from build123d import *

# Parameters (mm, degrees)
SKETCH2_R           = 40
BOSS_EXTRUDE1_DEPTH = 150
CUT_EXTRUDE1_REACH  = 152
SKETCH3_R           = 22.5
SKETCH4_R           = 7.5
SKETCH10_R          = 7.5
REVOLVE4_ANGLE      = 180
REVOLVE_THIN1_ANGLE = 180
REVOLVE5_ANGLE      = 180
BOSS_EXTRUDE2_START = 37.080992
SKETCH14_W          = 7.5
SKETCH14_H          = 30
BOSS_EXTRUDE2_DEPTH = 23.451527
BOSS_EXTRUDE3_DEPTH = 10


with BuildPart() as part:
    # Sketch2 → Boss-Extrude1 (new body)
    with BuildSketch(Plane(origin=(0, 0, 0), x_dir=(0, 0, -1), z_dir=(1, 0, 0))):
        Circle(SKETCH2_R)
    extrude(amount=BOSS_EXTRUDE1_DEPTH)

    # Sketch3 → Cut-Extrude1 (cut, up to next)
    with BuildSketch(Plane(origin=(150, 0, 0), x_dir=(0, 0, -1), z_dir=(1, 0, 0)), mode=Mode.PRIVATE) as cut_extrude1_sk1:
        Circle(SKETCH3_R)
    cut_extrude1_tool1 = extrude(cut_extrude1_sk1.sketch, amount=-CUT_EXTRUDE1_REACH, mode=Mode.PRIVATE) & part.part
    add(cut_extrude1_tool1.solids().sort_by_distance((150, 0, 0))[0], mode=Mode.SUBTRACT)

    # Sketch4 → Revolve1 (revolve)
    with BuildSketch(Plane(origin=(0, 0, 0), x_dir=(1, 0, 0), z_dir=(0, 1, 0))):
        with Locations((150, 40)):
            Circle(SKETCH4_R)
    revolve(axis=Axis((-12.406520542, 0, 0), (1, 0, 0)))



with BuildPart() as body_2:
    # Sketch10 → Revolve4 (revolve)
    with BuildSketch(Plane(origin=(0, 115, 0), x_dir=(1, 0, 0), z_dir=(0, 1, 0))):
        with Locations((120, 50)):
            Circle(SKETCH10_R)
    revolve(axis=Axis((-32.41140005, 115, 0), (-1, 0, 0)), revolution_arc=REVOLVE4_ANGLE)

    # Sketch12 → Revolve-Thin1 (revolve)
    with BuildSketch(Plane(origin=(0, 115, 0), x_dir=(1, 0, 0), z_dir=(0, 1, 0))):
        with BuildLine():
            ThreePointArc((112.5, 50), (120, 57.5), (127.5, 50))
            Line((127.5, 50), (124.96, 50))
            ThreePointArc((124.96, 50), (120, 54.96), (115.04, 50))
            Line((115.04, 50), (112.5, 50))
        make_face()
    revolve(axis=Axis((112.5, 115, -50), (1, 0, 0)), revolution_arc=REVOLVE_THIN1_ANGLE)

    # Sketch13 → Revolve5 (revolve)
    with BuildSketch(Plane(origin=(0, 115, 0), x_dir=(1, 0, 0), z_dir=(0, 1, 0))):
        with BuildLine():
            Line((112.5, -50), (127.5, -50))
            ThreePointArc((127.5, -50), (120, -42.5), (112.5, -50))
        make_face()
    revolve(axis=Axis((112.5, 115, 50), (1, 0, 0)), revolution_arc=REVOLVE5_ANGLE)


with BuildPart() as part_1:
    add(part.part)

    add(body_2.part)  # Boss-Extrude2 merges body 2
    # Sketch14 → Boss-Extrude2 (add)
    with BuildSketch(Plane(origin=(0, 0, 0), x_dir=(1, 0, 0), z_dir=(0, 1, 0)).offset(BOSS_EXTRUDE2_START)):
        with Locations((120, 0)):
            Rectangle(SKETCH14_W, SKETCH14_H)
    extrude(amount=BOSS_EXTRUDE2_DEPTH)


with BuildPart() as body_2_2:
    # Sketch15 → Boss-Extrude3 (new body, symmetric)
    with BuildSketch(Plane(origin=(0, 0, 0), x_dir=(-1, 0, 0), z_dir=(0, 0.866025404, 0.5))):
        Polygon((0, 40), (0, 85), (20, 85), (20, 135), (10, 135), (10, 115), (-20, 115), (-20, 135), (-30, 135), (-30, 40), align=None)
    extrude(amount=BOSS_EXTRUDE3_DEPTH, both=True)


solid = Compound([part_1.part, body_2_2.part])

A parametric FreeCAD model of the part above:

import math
import FreeCAD as App
import Part
import Sketcher

V = App.Vector

doc = App.newDocument("Part")
body = doc.addObject("PartDesign::Body", "Body")

# Sketch on YZ plane
sketch1 = body.newObject("Sketcher::SketchObject", "Sketch")
sketch1.AttachmentSupport = (doc.getObject("YZ_Plane"), [""])
sketch1.MapMode = "FlatFace"
sketch1.addGeometry(Part.Circle(V(0, 0, 0), V(0, 0, 1), 40), False)
sketch1.addConstraint([
    Sketcher.Constraint("Coincident", 0, 3, -1, 1),
    Sketcher.Constraint("Diameter", 0, 80.0),
])
pad1 = body.newObject("PartDesign::Pad", "Pad")
pad1.Profile = sketch1
pad1.Length = 150

# Sketch on YZ plane
sketch2 = body.newObject("Sketcher::SketchObject", "Sketch001")
sketch2.AttachmentSupport = (doc.getObject("YZ_Plane"), [""])
sketch2.MapMode = "FlatFace"
sketch2.AttachmentOffset = App.Placement(V(0, 0, 150), App.Rotation())
sketch2.addGeometry(Part.Circle(V(0, 0, 0), V(0, 0, 1), 22.5), False)
sketch2.addConstraint([
    Sketcher.Constraint("Coincident", 0, 3, -1, 1),
    Sketcher.Constraint("Diameter", 0, 45.0),
])
pocket1 = body.newObject("PartDesign::Pocket", "Pocket")
pocket1.Profile = sketch2
pocket1.Type = "UpToFirst"

# Sketch on XZ plane
sketch3 = body.newObject("Sketcher::SketchObject", "Sketch002")
sketch3.AttachmentSupport = (doc.getObject("XZ_Plane"), [""])
sketch3.MapMode = "FlatFace"
sketch3.addGeometry(Part.Circle(V(150, -40, 0), V(0, 0, 1), 7.5), False)
sketch3.addConstraint([
    Sketcher.Constraint("Diameter", 0, 15.0),
    Sketcher.Constraint("DistanceX", -1, 1, 0, 3, 150.0),
    Sketcher.Constraint("DistanceY", 0, 3, -1, 1, 40.0),
])
revolution = body.newObject("PartDesign::Revolution", "Revolution")
revolution.Profile = sketch3
revolution.ReferenceAxis = (sketch3, ["H_Axis"])
revolution.Angle = 360
body2 = doc.addObject("PartDesign::Body", "Body001")

# Sketch on XZ plane
sketch4 = body2.newObject("Sketcher::SketchObject", "Sketch003")
sketch4.AttachmentSupport = (doc.getObject("XZ_Plane001"), [""])
sketch4.MapMode = "FlatFace"
sketch4.AttachmentOffset = App.Placement(V(0, 0, -115), App.Rotation())
sketch4.addGeometry(Part.Circle(V(120, -50, 0), V(0, 0, 1), 7.5), False)
sketch4.addConstraint([
    Sketcher.Constraint("Diameter", 0, 15.0),
    Sketcher.Constraint("DistanceX", -1, 1, 0, 3, 120.0),
    Sketcher.Constraint("DistanceY", 0, 3, -1, 1, 50.0),
])
revolution2 = body2.newObject("PartDesign::Revolution", "Revolution001")
revolution2.Profile = sketch4
revolution2.ReferenceAxis = (sketch4, ["H_Axis"])
revolution2.Angle = 180
revolution2.Reversed = True

# Sketch on XZ plane
sketch5 = body2.newObject("Sketcher::SketchObject", "Sketch004")
sketch5.AttachmentSupport = (doc.getObject("XZ_Plane001"), [""])
sketch5.MapMode = "FlatFace"
sketch5.AttachmentOffset = App.Placement(V(0, 0, -115), App.Rotation())
sketch5.addGeometry([
    Part.ArcOfCircle(Part.Circle(V(120, -50, 0), V(0, 0, 1), 7.5), math.radians(180), math.radians(360)),
    Part.LineSegment(V(112.5, -50, 0), V(115.04, -50, 0)),
    Part.ArcOfCircle(Part.Circle(V(120, -50, 0), V(0, 0, 1), 4.96), math.radians(180), math.radians(360)),
    Part.LineSegment(V(124.96, -50, 0), V(127.5, -50, 0)),
], False)
sketch5.addGeometry(Part.LineSegment(V(112.5, -50, 0), V(127.5, -50, 0)), True)  # axis
sketch5.addConstraint([
    Sketcher.Constraint("Coincident", 0, 1, 1, 1),
    Sketcher.Constraint("Coincident", 1, 2, 2, 1),
    Sketcher.Constraint("Coincident", 2, 2, 3, 1),
    Sketcher.Constraint("Coincident", 3, 2, 0, 2),
    Sketcher.Constraint("Horizontal", 1),
    Sketcher.Constraint("Horizontal", 3),
    Sketcher.Constraint("Horizontal", 4),
    Sketcher.Constraint("Coincident", 2, 3, 0, 3),
    Sketcher.Constraint("Coincident", 4, 1, 0, 1),
    Sketcher.Constraint("Coincident", 4, 2, 3, 2),
    Sketcher.Constraint("Horizontal", 2, 3, 0, 1),
    Sketcher.Constraint("Radius", 0, 7.5),
    Sketcher.Constraint("Radius", 2, 4.96),
    Sketcher.Constraint("DistanceX", -1, 1, 0, 3, 120.0),
    Sketcher.Constraint("DistanceY", 0, 3, -1, 1, 50.0),
])
revolution3 = body2.newObject("PartDesign::Revolution", "Revolution002")
revolution3.Profile = sketch5
revolution3.ReferenceAxis = (sketch5, ["Axis0"])
revolution3.Angle = 180

# Sketch on XZ plane
sketch6 = body2.newObject("Sketcher::SketchObject", "Sketch005")
sketch6.AttachmentSupport = (doc.getObject("XZ_Plane001"), [""])
sketch6.MapMode = "FlatFace"
sketch6.AttachmentOffset = App.Placement(V(0, 0, -115), App.Rotation())
sketch6.addGeometry([
    Part.LineSegment(V(112.5, 50, 0), V(127.5, 50, 0)),
    Part.ArcOfCircle(Part.Circle(V(120, 50, 0), V(0, 0, 1), 7.5), math.radians(180), math.radians(360)),
], False)
sketch6.addGeometry(Part.LineSegment(V(112.5, 50, 0), V(127.5, 50, 0)), True)  # axis
sketch6.addConstraint([
    Sketcher.Constraint("Coincident", 0, 1, 1, 1),
    Sketcher.Constraint("Coincident", 1, 2, 0, 2),
    Sketcher.Constraint("Horizontal", 0),
    Sketcher.Constraint("Horizontal", 2),
    Sketcher.Constraint("Coincident", 2, 1, 0, 1),
    Sketcher.Constraint("Horizontal", 1, 3, 0, 1),
    Sketcher.Constraint("Equal", 0, 2),
    Sketcher.Constraint("Radius", 1, 7.5),
    Sketcher.Constraint("DistanceX", -1, 1, 1, 3, 120.0),
    Sketcher.Constraint("DistanceY", -1, 1, 1, 3, 50.0),
])
revolution4 = body2.newObject("PartDesign::Revolution", "Revolution003")
revolution4.Profile = sketch6
revolution4.ReferenceAxis = (sketch6, ["Axis0"])
revolution4.Angle = 180
body.AllowCompound = True
doc.recompute()

boolean = body.newObject("PartDesign::Boolean", "Boolean")
boolean.Type = "Fuse"
boolean.addObjects([body2])

# Sketch on XZ plane
sketch7 = body.newObject("Sketcher::SketchObject", "Sketch006")
sketch7.AttachmentSupport = (doc.getObject("XZ_Plane"), [""])
sketch7.MapMode = "FlatFace"
sketch7.AttachmentOffset = App.Placement(V(0, 0, -37.080992), App.Rotation())
sketch7.addGeometry([
    Part.LineSegment(V(116.25, -15, 0), V(116.25, 15, 0)),
    Part.LineSegment(V(116.25, 15, 0), V(123.75, 15, 0)),
    Part.LineSegment(V(123.75, 15, 0), V(123.75, -15, 0)),
    Part.LineSegment(V(123.75, -15, 0), V(116.25, -15, 0)),
], False)
sketch7.addConstraint([
    Sketcher.Constraint("Coincident", 0, 2, 1, 1),
    Sketcher.Constraint("Coincident", 1, 2, 2, 1),
    Sketcher.Constraint("Coincident", 2, 2, 3, 1),
    Sketcher.Constraint("Coincident", 3, 2, 0, 1),
    Sketcher.Constraint("Vertical", 0),
    Sketcher.Constraint("Horizontal", 1),
    Sketcher.Constraint("Vertical", 2),
    Sketcher.Constraint("Horizontal", 3),
    Sketcher.Constraint("DistanceY", 0, 1, 0, 2, 30.0),
    Sketcher.Constraint("DistanceX", 1, 1, 1, 2, 7.5),
    Sketcher.Constraint("DistanceY", -1, 1, 0, 2, 15.0),
    Sketcher.Constraint("DistanceX", -1, 1, 0, 2, 116.25),
])
pad2 = body.newObject("PartDesign::Pad", "Pad001")
pad2.Profile = sketch7
pad2.Length = 23.451527
pad2.Reversed = True
body3 = doc.addObject("PartDesign::Body", "Body002")

# Sketch on an angled plane
sketch8 = body3.newObject("Sketcher::SketchObject", "Sketch007")
sketch8.Placement = App.Placement(V(0, 0, 0), App.Rotation(V(-1, 0, 0), V(0, -0.5, 0.866025404), V(0, 0.866025404, 0.5), "ZXY"))
sketch8.addGeometry([
    Part.LineSegment(V(0, 40, 0), V(0, 85, 0)),  # 0
    Part.LineSegment(V(0, 85, 0), V(20, 85, 0)),  # 1
    Part.LineSegment(V(20, 85, 0), V(20, 135, 0)),  # 2
    Part.LineSegment(V(20, 135, 0), V(10, 135, 0)),  # 3
    Part.LineSegment(V(10, 135, 0), V(10, 115, 0)),  # 4
    Part.LineSegment(V(10, 115, 0), V(-20, 115, 0)),  # 5
    Part.LineSegment(V(-20, 115, 0), V(-20, 135, 0)),  # 6
    Part.LineSegment(V(-20, 135, 0), V(-30, 135, 0)),  # 7
    Part.LineSegment(V(-30, 135, 0), V(-30, 40, 0)),  # 8
    Part.LineSegment(V(-30, 40, 0), V(0, 40, 0)),  # 9
], False)
sketch8.addConstraint([
    Sketcher.Constraint("Coincident", 0, 2, 1, 1),
    Sketcher.Constraint("Coincident", 1, 2, 2, 1),
    Sketcher.Constraint("Coincident", 2, 2, 3, 1),
    Sketcher.Constraint("Coincident", 3, 2, 4, 1),
    Sketcher.Constraint("Coincident", 4, 2, 5, 1),
    Sketcher.Constraint("Coincident", 5, 2, 6, 1),
    Sketcher.Constraint("Coincident", 6, 2, 7, 1),
    Sketcher.Constraint("Coincident", 7, 2, 8, 1),
    Sketcher.Constraint("Coincident", 8, 2, 9, 1),
    Sketcher.Constraint("Coincident", 9, 2, 0, 1),
    Sketcher.Constraint("Vertical", 0),
    Sketcher.Constraint("Horizontal", 1),
    Sketcher.Constraint("Vertical", 2),
    Sketcher.Constraint("Horizontal", 3),
    Sketcher.Constraint("Vertical", 4),
    Sketcher.Constraint("Horizontal", 5),
    Sketcher.Constraint("Vertical", 6),
    Sketcher.Constraint("Horizontal", 7),
    Sketcher.Constraint("Vertical", 8),
    Sketcher.Constraint("Horizontal", 9),
    Sketcher.Constraint("Symmetric", 2, 2, 6, 2, -2),
    Sketcher.Constraint("PointOnObject", 0, 2, -2),
    Sketcher.Constraint("Equal", 3, 7),
    Sketcher.Constraint("Equal", 5, 9),
    Sketcher.Constraint("Equal", 1, 4),
    Sketcher.Constraint("DistanceX", 1, 1, 1, 2, 20.0),
    Sketcher.Constraint("DistanceY", 0, 1, 0, 2, 45.0),
    Sketcher.Constraint("DistanceY", 2, 1, 2, 2, 50.0),
    Sketcher.Constraint("DistanceY", -1, 1, 0, 2, 85.0),
])
pad3 = body3.newObject("PartDesign::Pad", "Pad002")
pad3.Profile = sketch8
pad3.Length = 20
pad3.Midplane = True

doc.recompute()
